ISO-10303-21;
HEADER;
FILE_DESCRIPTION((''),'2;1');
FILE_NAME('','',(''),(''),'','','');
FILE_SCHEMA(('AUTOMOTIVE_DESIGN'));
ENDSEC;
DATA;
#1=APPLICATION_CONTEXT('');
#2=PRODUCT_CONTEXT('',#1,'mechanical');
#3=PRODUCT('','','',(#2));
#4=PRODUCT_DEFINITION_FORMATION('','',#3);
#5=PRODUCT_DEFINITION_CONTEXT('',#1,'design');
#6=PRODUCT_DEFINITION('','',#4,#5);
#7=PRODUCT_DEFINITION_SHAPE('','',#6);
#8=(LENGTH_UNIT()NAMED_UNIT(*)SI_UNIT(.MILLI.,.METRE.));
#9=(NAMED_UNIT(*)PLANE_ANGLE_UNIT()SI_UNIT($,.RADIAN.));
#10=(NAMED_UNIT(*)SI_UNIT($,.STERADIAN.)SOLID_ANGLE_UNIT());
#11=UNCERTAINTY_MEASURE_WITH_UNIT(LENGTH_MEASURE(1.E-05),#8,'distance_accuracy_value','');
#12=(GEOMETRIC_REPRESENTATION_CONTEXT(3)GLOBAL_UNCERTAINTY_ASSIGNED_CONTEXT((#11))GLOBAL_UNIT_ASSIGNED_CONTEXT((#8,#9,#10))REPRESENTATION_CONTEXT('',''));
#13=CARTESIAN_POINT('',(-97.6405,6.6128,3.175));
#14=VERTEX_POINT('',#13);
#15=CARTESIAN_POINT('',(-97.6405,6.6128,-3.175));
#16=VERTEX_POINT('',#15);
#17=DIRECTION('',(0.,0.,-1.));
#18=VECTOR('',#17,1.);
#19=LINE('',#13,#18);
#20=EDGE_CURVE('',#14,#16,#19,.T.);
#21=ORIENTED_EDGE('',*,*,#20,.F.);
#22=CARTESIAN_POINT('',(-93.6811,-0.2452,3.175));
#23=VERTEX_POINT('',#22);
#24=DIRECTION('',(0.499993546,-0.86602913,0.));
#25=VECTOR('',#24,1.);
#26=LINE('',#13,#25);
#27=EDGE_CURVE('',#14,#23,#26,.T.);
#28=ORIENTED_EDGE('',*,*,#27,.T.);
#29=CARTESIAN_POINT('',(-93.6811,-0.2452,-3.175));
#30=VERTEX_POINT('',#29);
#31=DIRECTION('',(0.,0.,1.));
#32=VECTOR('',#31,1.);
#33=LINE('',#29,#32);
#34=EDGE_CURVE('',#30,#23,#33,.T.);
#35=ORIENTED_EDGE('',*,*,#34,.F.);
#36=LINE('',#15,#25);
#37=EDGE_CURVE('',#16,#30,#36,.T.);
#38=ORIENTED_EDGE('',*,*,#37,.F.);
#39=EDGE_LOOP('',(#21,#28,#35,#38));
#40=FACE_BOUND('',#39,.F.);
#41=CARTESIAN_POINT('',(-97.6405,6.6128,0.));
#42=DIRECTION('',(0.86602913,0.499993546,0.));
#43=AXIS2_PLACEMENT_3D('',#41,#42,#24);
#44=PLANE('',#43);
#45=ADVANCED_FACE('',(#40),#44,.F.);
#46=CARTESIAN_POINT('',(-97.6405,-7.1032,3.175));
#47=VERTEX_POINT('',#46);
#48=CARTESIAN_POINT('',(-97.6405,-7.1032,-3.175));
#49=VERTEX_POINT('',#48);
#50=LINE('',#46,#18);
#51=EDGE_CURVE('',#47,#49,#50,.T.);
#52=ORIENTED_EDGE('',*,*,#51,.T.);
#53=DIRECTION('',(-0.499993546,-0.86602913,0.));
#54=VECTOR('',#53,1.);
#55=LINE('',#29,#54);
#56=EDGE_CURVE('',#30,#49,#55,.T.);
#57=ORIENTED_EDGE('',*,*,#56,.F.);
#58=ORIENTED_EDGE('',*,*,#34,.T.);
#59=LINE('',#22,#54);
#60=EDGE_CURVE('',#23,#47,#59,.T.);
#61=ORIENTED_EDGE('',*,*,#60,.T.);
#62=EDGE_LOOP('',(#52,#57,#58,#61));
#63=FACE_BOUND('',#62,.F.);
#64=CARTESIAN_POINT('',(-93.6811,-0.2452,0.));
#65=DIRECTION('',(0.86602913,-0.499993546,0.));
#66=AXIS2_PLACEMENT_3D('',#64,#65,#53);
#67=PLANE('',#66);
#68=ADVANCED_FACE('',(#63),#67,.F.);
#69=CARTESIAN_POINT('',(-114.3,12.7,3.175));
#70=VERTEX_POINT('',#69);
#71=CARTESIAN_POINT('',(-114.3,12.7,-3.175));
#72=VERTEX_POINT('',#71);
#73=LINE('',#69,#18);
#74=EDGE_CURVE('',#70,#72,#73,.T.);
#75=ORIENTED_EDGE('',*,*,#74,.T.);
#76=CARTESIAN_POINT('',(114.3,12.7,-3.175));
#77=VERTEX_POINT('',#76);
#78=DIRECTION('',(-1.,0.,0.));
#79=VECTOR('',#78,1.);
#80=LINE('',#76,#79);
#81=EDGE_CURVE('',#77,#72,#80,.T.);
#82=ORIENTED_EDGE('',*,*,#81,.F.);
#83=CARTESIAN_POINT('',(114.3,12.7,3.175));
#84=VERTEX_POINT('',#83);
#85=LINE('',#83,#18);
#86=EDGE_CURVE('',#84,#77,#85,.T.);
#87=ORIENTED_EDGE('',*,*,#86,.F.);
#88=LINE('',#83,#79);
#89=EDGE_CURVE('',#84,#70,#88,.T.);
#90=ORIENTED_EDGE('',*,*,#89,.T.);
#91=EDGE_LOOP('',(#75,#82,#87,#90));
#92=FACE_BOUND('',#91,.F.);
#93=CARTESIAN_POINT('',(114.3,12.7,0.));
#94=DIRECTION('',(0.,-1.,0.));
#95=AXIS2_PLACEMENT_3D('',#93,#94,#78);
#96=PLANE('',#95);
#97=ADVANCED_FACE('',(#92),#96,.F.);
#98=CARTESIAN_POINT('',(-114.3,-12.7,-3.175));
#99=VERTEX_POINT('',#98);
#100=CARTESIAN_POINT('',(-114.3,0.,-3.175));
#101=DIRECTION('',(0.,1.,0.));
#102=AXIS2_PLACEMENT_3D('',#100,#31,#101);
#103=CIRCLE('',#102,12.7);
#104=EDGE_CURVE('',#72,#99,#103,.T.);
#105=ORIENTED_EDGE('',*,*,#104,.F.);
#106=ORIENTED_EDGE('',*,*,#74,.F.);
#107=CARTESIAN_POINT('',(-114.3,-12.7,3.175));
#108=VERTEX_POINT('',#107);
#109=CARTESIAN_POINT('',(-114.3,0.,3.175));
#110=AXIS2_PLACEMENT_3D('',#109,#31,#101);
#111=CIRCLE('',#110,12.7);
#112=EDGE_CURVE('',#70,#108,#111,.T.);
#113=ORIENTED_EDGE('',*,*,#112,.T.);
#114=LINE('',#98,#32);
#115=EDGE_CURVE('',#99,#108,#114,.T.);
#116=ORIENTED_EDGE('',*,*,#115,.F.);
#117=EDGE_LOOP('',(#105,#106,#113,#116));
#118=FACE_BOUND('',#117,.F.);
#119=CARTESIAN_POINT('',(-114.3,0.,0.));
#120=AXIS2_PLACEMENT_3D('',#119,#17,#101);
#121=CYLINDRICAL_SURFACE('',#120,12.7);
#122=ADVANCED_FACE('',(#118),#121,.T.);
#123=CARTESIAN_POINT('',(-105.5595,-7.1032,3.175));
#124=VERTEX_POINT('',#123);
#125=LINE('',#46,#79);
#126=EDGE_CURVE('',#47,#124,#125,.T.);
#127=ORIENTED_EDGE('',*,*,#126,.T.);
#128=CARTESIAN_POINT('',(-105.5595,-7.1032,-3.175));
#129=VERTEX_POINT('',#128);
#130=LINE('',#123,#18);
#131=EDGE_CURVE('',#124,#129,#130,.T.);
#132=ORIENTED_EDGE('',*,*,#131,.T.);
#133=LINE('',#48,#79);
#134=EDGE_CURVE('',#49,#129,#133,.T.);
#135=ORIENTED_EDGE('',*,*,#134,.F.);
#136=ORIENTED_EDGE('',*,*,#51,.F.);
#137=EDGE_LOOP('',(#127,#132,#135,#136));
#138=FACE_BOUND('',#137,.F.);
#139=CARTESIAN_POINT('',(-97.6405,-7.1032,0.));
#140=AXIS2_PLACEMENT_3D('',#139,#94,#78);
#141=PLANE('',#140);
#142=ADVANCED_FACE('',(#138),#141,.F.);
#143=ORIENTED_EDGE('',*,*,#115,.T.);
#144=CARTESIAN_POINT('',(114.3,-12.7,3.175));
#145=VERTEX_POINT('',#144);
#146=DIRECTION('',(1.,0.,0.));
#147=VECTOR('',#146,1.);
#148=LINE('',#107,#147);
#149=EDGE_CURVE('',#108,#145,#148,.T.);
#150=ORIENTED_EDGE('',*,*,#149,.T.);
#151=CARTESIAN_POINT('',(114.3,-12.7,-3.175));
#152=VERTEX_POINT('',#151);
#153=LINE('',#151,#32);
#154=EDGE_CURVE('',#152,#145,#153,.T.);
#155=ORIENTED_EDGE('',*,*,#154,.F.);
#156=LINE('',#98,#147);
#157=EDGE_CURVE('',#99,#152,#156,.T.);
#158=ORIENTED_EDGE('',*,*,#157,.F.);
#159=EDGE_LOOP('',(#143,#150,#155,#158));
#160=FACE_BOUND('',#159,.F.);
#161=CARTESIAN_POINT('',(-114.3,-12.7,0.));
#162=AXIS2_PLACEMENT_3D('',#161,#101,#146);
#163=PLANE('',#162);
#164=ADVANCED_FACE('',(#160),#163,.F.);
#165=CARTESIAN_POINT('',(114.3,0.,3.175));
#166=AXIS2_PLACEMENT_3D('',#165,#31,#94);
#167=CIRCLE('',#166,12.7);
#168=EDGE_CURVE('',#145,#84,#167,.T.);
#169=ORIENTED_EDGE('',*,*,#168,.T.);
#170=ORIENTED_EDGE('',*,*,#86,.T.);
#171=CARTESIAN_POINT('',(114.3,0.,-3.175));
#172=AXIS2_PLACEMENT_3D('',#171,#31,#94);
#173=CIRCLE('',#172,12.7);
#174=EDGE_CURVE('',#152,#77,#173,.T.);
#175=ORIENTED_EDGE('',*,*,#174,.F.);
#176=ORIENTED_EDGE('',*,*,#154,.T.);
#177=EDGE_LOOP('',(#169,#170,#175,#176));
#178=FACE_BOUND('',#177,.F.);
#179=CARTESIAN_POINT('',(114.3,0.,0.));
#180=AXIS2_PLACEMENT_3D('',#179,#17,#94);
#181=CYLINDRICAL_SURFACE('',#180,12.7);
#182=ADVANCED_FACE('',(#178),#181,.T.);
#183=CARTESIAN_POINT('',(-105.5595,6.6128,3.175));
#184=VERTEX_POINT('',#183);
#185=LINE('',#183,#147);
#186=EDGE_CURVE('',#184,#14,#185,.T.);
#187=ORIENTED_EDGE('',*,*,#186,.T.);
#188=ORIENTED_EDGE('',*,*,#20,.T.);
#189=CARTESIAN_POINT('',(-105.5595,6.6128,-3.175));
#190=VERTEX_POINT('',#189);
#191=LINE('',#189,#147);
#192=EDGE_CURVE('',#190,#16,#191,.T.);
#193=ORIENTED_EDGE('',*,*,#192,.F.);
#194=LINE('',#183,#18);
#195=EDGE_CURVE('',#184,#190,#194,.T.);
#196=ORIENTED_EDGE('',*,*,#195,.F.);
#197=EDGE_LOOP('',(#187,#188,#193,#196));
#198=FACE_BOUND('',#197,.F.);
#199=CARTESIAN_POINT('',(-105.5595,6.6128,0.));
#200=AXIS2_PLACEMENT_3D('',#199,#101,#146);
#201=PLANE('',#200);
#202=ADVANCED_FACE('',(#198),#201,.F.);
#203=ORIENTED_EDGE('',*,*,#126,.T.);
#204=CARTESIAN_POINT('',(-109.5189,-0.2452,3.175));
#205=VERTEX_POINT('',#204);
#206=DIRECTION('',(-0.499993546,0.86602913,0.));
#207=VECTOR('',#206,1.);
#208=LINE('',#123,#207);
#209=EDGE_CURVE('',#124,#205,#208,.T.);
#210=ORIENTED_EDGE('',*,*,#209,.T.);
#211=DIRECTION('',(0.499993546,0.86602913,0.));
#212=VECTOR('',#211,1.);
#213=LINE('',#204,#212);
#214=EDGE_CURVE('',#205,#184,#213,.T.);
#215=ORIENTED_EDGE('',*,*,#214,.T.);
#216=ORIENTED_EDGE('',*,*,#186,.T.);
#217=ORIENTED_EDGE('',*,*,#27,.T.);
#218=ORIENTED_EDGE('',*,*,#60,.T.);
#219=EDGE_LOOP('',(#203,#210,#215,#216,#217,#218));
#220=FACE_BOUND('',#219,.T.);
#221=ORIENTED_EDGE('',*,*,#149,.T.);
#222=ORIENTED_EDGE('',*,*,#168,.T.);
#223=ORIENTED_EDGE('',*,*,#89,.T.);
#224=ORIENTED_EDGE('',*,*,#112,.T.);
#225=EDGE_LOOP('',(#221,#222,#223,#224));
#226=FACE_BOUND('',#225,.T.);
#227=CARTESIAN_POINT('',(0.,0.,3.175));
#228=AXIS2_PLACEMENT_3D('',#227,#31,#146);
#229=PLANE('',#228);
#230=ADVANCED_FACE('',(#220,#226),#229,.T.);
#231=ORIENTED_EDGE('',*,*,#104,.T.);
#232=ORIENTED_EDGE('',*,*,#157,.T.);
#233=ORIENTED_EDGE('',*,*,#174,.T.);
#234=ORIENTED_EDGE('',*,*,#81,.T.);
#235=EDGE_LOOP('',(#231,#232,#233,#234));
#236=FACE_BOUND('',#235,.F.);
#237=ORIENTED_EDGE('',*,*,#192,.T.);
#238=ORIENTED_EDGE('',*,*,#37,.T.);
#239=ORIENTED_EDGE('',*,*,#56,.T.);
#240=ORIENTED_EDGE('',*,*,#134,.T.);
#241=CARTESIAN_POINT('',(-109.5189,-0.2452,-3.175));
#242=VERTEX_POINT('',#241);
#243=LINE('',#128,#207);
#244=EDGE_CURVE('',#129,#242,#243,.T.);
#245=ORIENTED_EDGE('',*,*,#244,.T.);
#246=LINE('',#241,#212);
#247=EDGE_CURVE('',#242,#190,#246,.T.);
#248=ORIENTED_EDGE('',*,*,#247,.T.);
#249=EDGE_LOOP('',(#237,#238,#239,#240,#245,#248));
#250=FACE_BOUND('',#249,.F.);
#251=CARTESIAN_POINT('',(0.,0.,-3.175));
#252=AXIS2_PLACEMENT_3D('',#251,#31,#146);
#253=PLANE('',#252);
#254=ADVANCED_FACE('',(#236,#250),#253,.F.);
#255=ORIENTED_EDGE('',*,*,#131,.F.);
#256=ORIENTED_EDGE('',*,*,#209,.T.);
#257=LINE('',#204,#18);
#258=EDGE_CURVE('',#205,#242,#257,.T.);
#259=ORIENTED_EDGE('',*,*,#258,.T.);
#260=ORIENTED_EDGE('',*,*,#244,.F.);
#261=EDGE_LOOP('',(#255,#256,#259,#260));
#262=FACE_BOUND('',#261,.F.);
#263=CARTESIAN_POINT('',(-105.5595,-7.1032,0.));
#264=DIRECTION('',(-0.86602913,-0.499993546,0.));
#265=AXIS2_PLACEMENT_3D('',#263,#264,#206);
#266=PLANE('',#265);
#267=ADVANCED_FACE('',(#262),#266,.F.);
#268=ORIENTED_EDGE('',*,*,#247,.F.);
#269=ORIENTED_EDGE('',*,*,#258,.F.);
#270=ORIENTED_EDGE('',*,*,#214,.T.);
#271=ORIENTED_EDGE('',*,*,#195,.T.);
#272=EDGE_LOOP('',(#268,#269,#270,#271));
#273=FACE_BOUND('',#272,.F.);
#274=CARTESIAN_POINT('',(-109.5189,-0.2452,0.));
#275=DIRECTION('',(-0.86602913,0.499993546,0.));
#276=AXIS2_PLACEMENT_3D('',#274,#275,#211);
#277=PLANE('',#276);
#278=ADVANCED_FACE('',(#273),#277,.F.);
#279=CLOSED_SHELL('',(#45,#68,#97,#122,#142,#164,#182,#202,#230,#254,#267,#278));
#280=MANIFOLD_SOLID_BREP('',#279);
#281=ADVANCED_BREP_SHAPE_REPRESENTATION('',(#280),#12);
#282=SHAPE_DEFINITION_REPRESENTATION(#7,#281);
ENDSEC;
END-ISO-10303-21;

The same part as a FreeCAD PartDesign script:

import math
import FreeCAD as App
import Part
import Sketcher

V = App.Vector
Q = App.Units.Quantity

doc = App.newDocument("Part")
body = doc.addObject("PartDesign::Body", "Body")

# Sketch on XY plane
sketch1 = body.newObject("Sketcher::SketchObject", "Sketch")
sketch1.AttachmentSupport = (doc.getObject("XY_Plane"), [""])
sketch1.MapMode = "FlatFace"
sketch1.addGeometry([
    Part.ArcOfCircle(Part.Circle(V(-114.3, 0, 0), V(0, 0, 1), 12.7), math.radians(90), math.radians(270)),  # 0
    Part.LineSegment(V(-114.3, -12.7, 0), V(114.3, -12.7, 0)),  # 1
    Part.ArcOfCircle(Part.Circle(V(114.3, 0, 0), V(0, 0, 1), 12.7), math.radians(-90), math.radians(90)),  # 2
    Part.LineSegment(V(114.3, 12.7, 0), V(-114.3, 12.7, 0)),  # 3
    Part.LineSegment(V(-97.6405, 6.6128, 0), V(-93.6811, -0.2452, 0)),  # 4
    Part.LineSegment(V(-93.6811, -0.2452, 0), V(-97.6405, -7.1032, 0)),  # 5
    Part.LineSegment(V(-97.6405, -7.1032, 0), V(-105.5595, -7.1032, 0)),  # 6
    Part.LineSegment(V(-105.5595, -7.1032, 0), V(-109.5189, -0.2452, 0)),  # 7
    Part.LineSegment(V(-109.5189, -0.2452, 0), V(-105.5595, 6.6128, 0)),  # 8
    Part.LineSegment(V(-105.5595, 6.6128, 0), V(-97.6405, 6.6128, 0)),  # 9
], False)
sketch1.addConstraint([
    Sketcher.Constraint("Tangent", 0, 2, 1, 1),
    Sketcher.Constraint("Tangent", 1, 2, 2, 1),
    Sketcher.Constraint("Tangent", 2, 2, 3, 1),
    Sketcher.Constraint("Tangent", 3, 2, 0, 1),
    Sketcher.Constraint("Coincident", 4, 2, 5, 1),
    Sketcher.Constraint("Coincident", 5, 2, 6, 1),
    Sketcher.Constraint("Coincident", 6, 2, 7, 1),
    Sketcher.Constraint("Coincident", 7, 2, 8, 1),
    Sketcher.Constraint("Coincident", 8, 2, 9, 1),
    Sketcher.Constraint("Coincident", 9, 2, 4, 1),
    Sketcher.Constraint("Horizontal", 1),
    Sketcher.Constraint("Horizontal", 3),
    Sketcher.Constraint("Horizontal", 6),
    Sketcher.Constraint("Horizontal", 9),
    Sketcher.Constraint("Symmetric", 0, 3, 2, 3, -1, 1),
    Sketcher.Constraint("Parallel", 4, 7),
    Sketcher.Constraint("Parallel", 5, 8),
    Sketcher.Constraint("Horizontal", 4, 2, 7, 2),
    Sketcher.Constraint("Vertical", 6, 2, 8, 2),
    Sketcher.Constraint("Vertical", 5, 2, 9, 2),
    Sketcher.Constraint("Radius", 0, Q("0.5 in")),
    Sketcher.Constraint("DistanceX", 1, 1, 1, 2, Q("9 in")),
    Sketcher.Constraint("DistanceY", 6, 2, 8, 2, Q("0.54 in")),
    Sketcher.Constraint("Angle", 4, Q("-60.0004 deg")),
    Sketcher.Constraint("DistanceX", 6, 2, 6, 1, Q("7.919 mm")),
    Sketcher.Constraint("DistanceX", 4, 2, -1, 1, Q("93.681 mm")),
    Sketcher.Constraint("DistanceY", 4, 2, -1, 1, Q("0.2452 mm")),
])
pad1 = body.newObject("PartDesign::Pad", "Pad")
pad1.Profile = sketch1
pad1.Length = Q("0.25 in")
pad1.Midplane = True

doc.recompute()
